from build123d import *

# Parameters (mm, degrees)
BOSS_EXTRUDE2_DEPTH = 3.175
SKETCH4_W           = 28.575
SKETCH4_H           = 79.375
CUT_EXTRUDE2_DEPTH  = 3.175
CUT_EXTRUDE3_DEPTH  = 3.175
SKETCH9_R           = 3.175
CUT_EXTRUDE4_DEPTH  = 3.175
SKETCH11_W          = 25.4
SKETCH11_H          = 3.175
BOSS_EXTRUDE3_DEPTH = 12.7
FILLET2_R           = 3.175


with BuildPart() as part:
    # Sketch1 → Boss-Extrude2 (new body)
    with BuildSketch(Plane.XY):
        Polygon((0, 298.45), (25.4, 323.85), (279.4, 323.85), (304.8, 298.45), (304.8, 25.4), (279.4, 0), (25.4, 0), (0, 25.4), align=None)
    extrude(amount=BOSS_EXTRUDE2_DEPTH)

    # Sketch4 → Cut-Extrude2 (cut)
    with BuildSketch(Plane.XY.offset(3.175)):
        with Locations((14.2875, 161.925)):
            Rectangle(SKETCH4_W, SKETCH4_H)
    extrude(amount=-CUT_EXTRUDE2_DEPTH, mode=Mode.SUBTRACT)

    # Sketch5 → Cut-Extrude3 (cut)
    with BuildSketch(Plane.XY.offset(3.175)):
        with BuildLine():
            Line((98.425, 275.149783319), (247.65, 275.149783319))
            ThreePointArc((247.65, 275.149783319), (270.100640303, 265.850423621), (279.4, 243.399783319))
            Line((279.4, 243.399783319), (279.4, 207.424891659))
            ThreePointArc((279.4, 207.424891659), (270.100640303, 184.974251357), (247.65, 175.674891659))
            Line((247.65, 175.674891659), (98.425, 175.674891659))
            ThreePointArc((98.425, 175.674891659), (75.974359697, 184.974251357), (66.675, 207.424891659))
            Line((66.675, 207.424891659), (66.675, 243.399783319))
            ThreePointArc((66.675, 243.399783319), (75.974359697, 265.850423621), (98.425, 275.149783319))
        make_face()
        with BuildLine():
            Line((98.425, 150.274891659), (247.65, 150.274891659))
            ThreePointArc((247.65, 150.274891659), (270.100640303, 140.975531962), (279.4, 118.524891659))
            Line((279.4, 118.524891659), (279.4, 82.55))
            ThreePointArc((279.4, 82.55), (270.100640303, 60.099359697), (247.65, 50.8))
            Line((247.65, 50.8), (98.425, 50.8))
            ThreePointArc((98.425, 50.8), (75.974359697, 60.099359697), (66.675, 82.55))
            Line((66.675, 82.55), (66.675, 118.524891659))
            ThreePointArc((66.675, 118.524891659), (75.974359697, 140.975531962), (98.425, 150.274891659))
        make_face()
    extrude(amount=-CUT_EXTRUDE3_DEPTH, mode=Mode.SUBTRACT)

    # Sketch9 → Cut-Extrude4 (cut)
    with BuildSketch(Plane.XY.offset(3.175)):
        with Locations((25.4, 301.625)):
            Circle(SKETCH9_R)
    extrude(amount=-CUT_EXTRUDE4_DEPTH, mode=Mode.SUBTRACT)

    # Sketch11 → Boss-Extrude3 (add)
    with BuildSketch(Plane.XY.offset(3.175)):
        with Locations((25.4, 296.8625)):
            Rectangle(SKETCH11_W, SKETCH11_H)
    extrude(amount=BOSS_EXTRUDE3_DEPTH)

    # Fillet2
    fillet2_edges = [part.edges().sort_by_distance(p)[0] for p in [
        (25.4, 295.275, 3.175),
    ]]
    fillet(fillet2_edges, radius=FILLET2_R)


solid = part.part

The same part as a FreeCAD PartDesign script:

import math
import FreeCAD as App
import Part
import Sketcher

V = App.Vector
Q = App.Units.Quantity


def edges_at(feature, points):
    """Names of the edges that pass closest to the given points."""
    edges = feature.Shape.Edges
    near = lambda p: min(range(len(edges)), key=lambda i: edges[i].distToShape(Part.Vertex(*p))[0])
    return sorted({f"Edge{near(p) + 1}" for p in points})

doc = App.newDocument("Part")
body = doc.addObject("PartDesign::Body", "Body")

sketch1 = doc.addObject("Sketcher::SketchObject", "Sketch")
body.addObject(sketch1)
sketch1.AttachmentSupport = (doc.XY_Plane, [""])
sketch1.MapMode = "FlatFace"
sketch1.addGeometry([
    Part.LineSegment(V(25.4, 323.85, 0), V(0, 298.45, 0)),
    Part.LineSegment(V(0, 298.45, 0), V(0, 25.4, 0)),
    Part.LineSegment(V(0, 25.4, 0), V(25.4, 0, 0)),
    Part.LineSegment(V(25.4, 0, 0), V(279.4, 0, 0)),
    Part.LineSegment(V(279.4, 0, 0), V(304.8, 25.4, 0)),
    Part.LineSegment(V(304.8, 25.4, 0), V(304.8, 298.45, 0)),
    Part.LineSegment(V(304.8, 298.45, 0), V(279.4, 323.85, 0)),
    Part.LineSegment(V(279.4, 323.85, 0), V(25.4, 323.85, 0)),
], False)
sketch1.addConstraint([
    Sketcher.Constraint("Coincident", 0, 2, 1, 1),
    Sketcher.Constraint("Coincident", 1, 2, 2, 1),
    Sketcher.Constraint("Coincident", 2, 2, 3, 1),
    Sketcher.Constraint("Coincident", 3, 2, 4, 1),
    Sketcher.Constraint("Coincident", 4, 2, 5, 1),
    Sketcher.Constraint("Coincident", 5, 2, 6, 1),
    Sketcher.Constraint("Coincident", 6, 2, 7, 1),
    Sketcher.Constraint("Coincident", 7, 2, 0, 1),
    Sketcher.Constraint("Vertical", 1),
    Sketcher.Constraint("Horizontal", 3),
    Sketcher.Constraint("Vertical", 5),
    Sketcher.Constraint("Horizontal", 7),
    Sketcher.Constraint("PointOnObject", 0, 2, -2),
    Sketcher.Constraint("PointOnObject", 2, 2, -1),
    Sketcher.Constraint("Perpendicular", 0, 2),
    Sketcher.Constraint("Perpendicular", 2, 4),
    Sketcher.Constraint("Perpendicular", 4, 6),
    Sketcher.Constraint("Horizontal", 1, 2, 4, 2),
    Sketcher.Constraint("Horizontal", 0, 2, 5, 2),
    Sketcher.Constraint("Vertical", 3, 2, 6, 2),
    Sketcher.Constraint("Vertical", 2, 2, 7, 2),
    Sketcher.Constraint("DistanceX", 3, 1, 3, 2, Q("10 in")),
    Sketcher.Constraint("DistanceY", -1, 1, 1, 2, Q("1 in")),
    Sketcher.Constraint("DistanceY", 1, 2, 1, 1, Q("10.75 in")),
])
pad1 = doc.addObject("PartDesign::Pad", "Pad")
body.addObject(pad1)
pad1.Profile = sketch1
pad1.Length = Q("0.125 in")

sketch2 = doc.addObject("Sketcher::SketchObject", "Sketch001")
body.addObject(sketch2)
sketch2.AttachmentSupport = (doc.XY_Plane, [""])
sketch2.MapMode = "FlatFace"
sketch2.AttachmentOffset = App.Placement(V(0, 0, 0.125 * 25.4), App.Rotation())
sketch2.addGeometry([
    Part.LineSegment(V(0, 201.6125, 0), V(0, 122.2375, 0)),
    Part.LineSegment(V(0, 122.2375, 0), V(28.575, 122.2375, 0)),
    Part.LineSegment(V(28.575, 122.2375, 0), V(28.575, 201.6125, 0)),
    Part.LineSegment(V(28.575, 201.6125, 0), V(0, 201.6125, 0)),
], False)
sketch2.addConstraint([
    Sketcher.Constraint("Coincident", 0, 2, 1, 1),
    Sketcher.Constraint("Coincident", 1, 2, 2, 1),
    Sketcher.Constraint("Coincident", 2, 2, 3, 1),
    Sketcher.Constraint("Coincident", 3, 2, 0, 1),
    Sketcher.Constraint("Vertical", 0),
    Sketcher.Constraint("Horizontal", 1),
    Sketcher.Constraint("Vertical", 2),
    Sketcher.Constraint("Horizontal", 3),
    Sketcher.Constraint("PointOnObject", 0, 2, -2),
    Sketcher.Constraint("DistanceX", 1, 1, 1, 2, Q("1.125 in")),
    Sketcher.Constraint("DistanceY", 0, 2, 0, 1, Q("3.125 in")),
    Sketcher.Constraint("DistanceY", -1, 1, 0, 2, Q("4.8125 in")),
])
pocket1 = doc.addObject("PartDesign::Pocket", "Pocket")
body.addObject(pocket1)
pocket1.Profile = sketch2
pocket1.Length = Q("0.125 in")

sketch3 = doc.addObject("Sketcher::SketchObject", "Sketch002")
body.addObject(sketch3)
sketch3.AttachmentSupport = (doc.XY_Plane, [""])
sketch3.MapMode = "FlatFace"
sketch3.AttachmentOffset = App.Placement(V(0, 0, 0.125 * 25.4), App.Rotation())
sketch3.addGeometry([
    Part.LineSegment(V(247.65, 275.149783, 0), V(98.425, 275.149783, 0)),
    Part.ArcOfCircle(Part.Circle(V(98.425, 243.399783, 0), V(0, 0, 1), 31.75), math.radians(90), math.radians(180)),
    Part.LineSegment(V(66.675, 243.399783, 0), V(66.675, 207.424892, 0)),
    Part.ArcOfCircle(Part.Circle(V(98.425, 207.424892, 0), V(0, 0, 1), 31.75), math.radians(-180), math.radians(-90)),
    Part.LineSegment(V(98.425, 175.674892, 0), V(247.65, 175.674892, 0)),
    Part.ArcOfCircle(Part.Circle(V(247.65, 207.424892, 0), V(0, 0, 1), 31.75), math.radians(-90), math.radians(0)),
    Part.LineSegment(V(279.4, 207.424892, 0), V(279.4, 243.399783, 0)),
    Part.ArcOfCircle(Part.Circle(V(247.65, 243.399783, 0), V(0, 0, 1), 31.75), math.radians(0), math.radians(90)),
    Part.LineSegment(V(247.65, 150.274892, 0), V(98.425, 150.274892, 0)),
    Part.ArcOfCircle(Part.Circle(V(98.425, 118.524892, 0), V(0, 0, 1), 31.75), math.radians(90), math.radians(180)),
    Part.LineSegment(V(66.675, 118.524892, 0), V(66.675, 82.55, 0)),
    Part.ArcOfCircle(Part.Circle(V(98.425, 82.55, 0), V(0, 0, 1), 31.75), math.radians(180), math.radians(270)),
    Part.LineSegment(V(98.425, 50.8, 0), V(247.65, 50.8, 0)),
    Part.ArcOfCircle(Part.Circle(V(247.65, 82.55, 0), V(0, 0, 1), 31.75), math.radians(-90), math.radians(0)),
    Part.LineSegment(V(279.4, 82.55, 0), V(279.4, 118.524892, 0)),
    Part.ArcOfCircle(Part.Circle(V(247.65, 118.524892, 0), V(0, 0, 1), 31.75), math.radians(0), math.radians(90)),
], False)
sketch3.addConstraint([
    Sketcher.Constraint("Tangent", 0, 2, 1, 1),
    Sketcher.Constraint("Tangent", 1, 2, 2, 1),
    Sketcher.Constraint("Tangent", 2, 2, 3, 1),
    Sketcher.Constraint("Tangent", 3, 2, 4, 1),
    Sketcher.Constraint("Tangent", 4, 2, 5, 1),
    Sketcher.Constraint("Tangent", 5, 2, 6, 1),
    Sketcher.Constraint("Tangent", 6, 2, 7, 1),
    Sketcher.Constraint("Tangent", 7, 2, 0, 1),
    Sketcher.Constraint("Tangent", 8, 2, 9, 1),
    Sketcher.Constraint("Tangent", 9, 2, 10, 1),
    Sketcher.Constraint("Tangent", 10, 2, 11, 1),
    Sketcher.Constraint("Tangent", 11, 2, 12, 1),
    Sketcher.Constraint("Tangent", 12, 2, 13, 1),
    Sketcher.Constraint("Tangent", 13, 2, 14, 1),
    Sketcher.Constraint("Tangent", 14, 2, 15, 1),
    Sketcher.Constraint("Tangent", 15, 2, 8, 1),
    Sketcher.Constraint("Horizontal", 0),
    Sketcher.Constraint("Vertical", 2),
    Sketcher.Constraint("Horizontal", 4),
    Sketcher.Constraint("Vertical", 6),
    Sketcher.Constraint("Horizontal", 8),
    Sketcher.Constraint("Vertical", 10),
    Sketcher.Constraint("Horizontal", 12),
    Sketcher.Constraint("Vertical", 14),
    Sketcher.Constraint("Equal", 1, 3),
    Sketcher.Constraint("Equal", 3, 5),
    Sketcher.Constraint("Equal", 5, 7),
    Sketcher.Constraint("Equal", 7, 9),
    Sketcher.Constraint("Equal", 9, 11),
    Sketcher.Constraint("Equal", 11, 13),
    Sketcher.Constraint("Equal", 13, 15),
    Sketcher.Constraint("Vertical", 3, 3, 9, 3),
    Sketcher.Constraint("Vertical", 7, 3, 13, 3),
    Sketcher.Constraint("Equal", 6, 10),
    Sketcher.Constraint("Radius", 1, Q("1.25 in")),
    Sketcher.Constraint("DistanceX", -1, 1, 5, 2, Q("11 in")),
    Sketcher.Constraint("DistanceY", -1, 1, 11, 2, Q("2 in")),
    Sketcher.Constraint("DistanceY", 8, 2, 3, 2, Q("1 in")),
    Sketcher.Constraint("DistanceX", 0, 2, 0, 1, Q("5.875 in")),
    Sketcher.Constraint("DistanceY", 2, 2, 2, 1, Q("35.974892 mm")),
])
pocket2 = doc.addObject("PartDesign::Pocket", "Pocket001")
body.addObject(pocket2)
pocket2.Profile = sketch3
pocket2.Length = Q("0.125 in")

sketch4 = doc.addObject("Sketcher::SketchObject", "Sketch003")
body.addObject(sketch4)
sketch4.AttachmentSupport = (doc.XY_Plane, [""])
sketch4.MapMode = "FlatFace"
sketch4.AttachmentOffset = App.Placement(V(0, 0, 0.125 * 25.4), App.Rotation())
sketch4.addGeometry(Part.Circle(V(25.4, 301.625, 0), V(0, 0, 1), 3.175), False)
sketch4.addConstraint([
    Sketcher.Constraint("Diameter", 0, Q("0.25 in")),
    Sketcher.Constraint("DistanceX", -1, 1, 0, 3, Q("1 in")),
    Sketcher.Constraint("DistanceY", -1, 1, 0, 3, Q("11.875 in")),
])
pocket3 = doc.addObject("PartDesign::Pocket", "Pocket002")
body.addObject(pocket3)
pocket3.Profile = sketch4
pocket3.Length = Q("0.125 in")

sketch5 = doc.addObject("Sketcher::SketchObject", "Sketch004")
body.addObject(sketch5)
sketch5.AttachmentSupport = (doc.XY_Plane, [""])
sketch5.MapMode = "FlatFace"
sketch5.AttachmentOffset = App.Placement(V(0, 0, 0.125 * 25.4), App.Rotation())
sketch5.addGeometry([
    Part.LineSegment(V(12.7, 298.45, 0), V(12.7, 295.275, 0)),
    Part.LineSegment(V(12.7, 295.275, 0), V(38.1, 295.275, 0)),
    Part.LineSegment(V(38.1, 295.275, 0), V(38.1, 298.45, 0)),
    Part.LineSegment(V(38.1, 298.45, 0), V(12.7, 298.45, 0)),
], False)
sketch5.addConstraint([
    Sketcher.Constraint("Coincident", 0, 2, 1, 1),
    Sketcher.Constraint("Coincident", 1, 2, 2, 1),
    Sketcher.Constraint("Coincident", 2, 2, 3, 1),
    Sketcher.Constraint("Coincident", 3, 2, 0, 1),
    Sketcher.Constraint("Vertical", 0),
    Sketcher.Constraint("Horizontal", 1),
    Sketcher.Constraint("Vertical", 2),
    Sketcher.Constraint("Horizontal", 3),
    Sketcher.Constraint("DistanceX", 1, 1, 1, 2, Q("1 in")),
    Sketcher.Constraint("DistanceX", -1, 1, 0, 2, Q("0.5 in")),
    Sketcher.Constraint("DistanceY", 0, 2, 0, 1, Q("0.125 in")),
    Sketcher.Constraint("DistanceY", -1, 1, 2, 2, Q("11.75 in")),
])
pad2 = doc.addObject("PartDesign::Pad", "Pad001")
body.addObject(pad2)
pad2.Profile = sketch5
pad2.Length = Q("0.5 in")
doc.recompute()

fillet = doc.addObject("PartDesign::Fillet", "Fillet")
body.addObject(fillet)
fillet.Base = (pad2, edges_at(pad2, [(25.4, 295.275, 3.175)]))
fillet.Radius = Q("0.125 in")

doc.recompute()
